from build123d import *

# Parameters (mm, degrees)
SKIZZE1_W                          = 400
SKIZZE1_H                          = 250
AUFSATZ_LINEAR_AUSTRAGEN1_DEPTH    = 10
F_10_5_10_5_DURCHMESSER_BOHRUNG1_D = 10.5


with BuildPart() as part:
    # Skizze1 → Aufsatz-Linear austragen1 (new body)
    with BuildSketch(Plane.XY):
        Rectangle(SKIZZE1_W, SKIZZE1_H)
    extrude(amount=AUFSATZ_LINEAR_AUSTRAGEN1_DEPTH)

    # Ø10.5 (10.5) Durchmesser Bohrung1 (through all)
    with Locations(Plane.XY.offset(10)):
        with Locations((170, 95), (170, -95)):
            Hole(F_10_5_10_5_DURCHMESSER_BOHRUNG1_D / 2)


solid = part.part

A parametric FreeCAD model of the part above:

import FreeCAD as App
import Part
import Sketcher
Q = App.Units.Quantity


def add_polygon(sketch, points):
    """Adds a closed chain of lines whose ends are joined by coincident constraints."""
    first, n = sketch.GeometryCount, len(points)
    for a, b in zip(points, points[1:] + points[:1]):
        sketch.addGeometry(Part.LineSegment(App.Vector(*a, 0), App.Vector(*b, 0)), False)
    for i in range(n):
        sketch.addConstraint(Sketcher.Constraint("Coincident", first + i, 2, first + (i + 1) % n, 1))

doc = App.newDocument("Part")
body = doc.addObject("PartDesign::Body", "Body")

sketch1 = doc.addObject("Sketcher::SketchObject", "Sketch")
body.addObject(sketch1)
sketch1.AttachmentSupport = (doc.XY_Plane, [""])
sketch1.MapMode = "FlatFace"
add_polygon(sketch1, [(-200, 125), (-200, -125), (200, -125), (200, 125)])
sketch1.addConstraint([
    Sketcher.Constraint("Vertical", 0),
    Sketcher.Constraint("Horizontal", 1),
    Sketcher.Constraint("Vertical", 2),
    Sketcher.Constraint("Horizontal", 3),
    Sketcher.Constraint("Symmetric", 0, 2, 2, 2, -1, 1),
    Sketcher.Constraint("DistanceX", 1, 1, 1, 2, Q("400 mm")),
    Sketcher.Constraint("DistanceY", 0, 2, 0, 1, Q("250 mm")),
])
pad1 = doc.addObject("PartDesign::Pad", "Pad")
body.addObject(pad1)
pad1.Profile = sketch1
pad1.Length = 10

sketch2 = doc.addObject("Sketcher::SketchObject", "Sketch001")
body.addObject(sketch2)
sketch2.AttachmentSupport = (doc.XY_Plane, [""])
sketch2.MapMode = "FlatFace"
sketch2.AttachmentOffset = App.Placement(App.Vector(0, 0, 10), App.Rotation())
sketch2.addGeometry([
    Part.Circle(App.Vector(170, 95, 0), App.Vector(0, 0, 1), 5),
    Part.Circle(App.Vector(170, -95, 0), App.Vector(0, 0, 1), 5),
], False)
sketch2.addConstraint([
    Sketcher.Constraint("Equal", 0, 1),
    Sketcher.Constraint("Symmetric", 0, 3, 1, 3, -1),
    Sketcher.Constraint("Diameter", 0, Q("10.5 mm")),
    Sketcher.Constraint("DistanceX", -1, 1, 0, 3, Q("170 mm")),
    Sketcher.Constraint("DistanceY", -1, 1, 0, 3, Q("95 mm")),
])
doc.recompute()
hole = doc.addObject("PartDesign::Hole", "Hole")
body.addObject(hole)
hole.Profile = sketch2
hole.ThreadType = "None"
hole.Diameter = 10.5
hole.DepthType = "ThroughAll"

doc.recompute()
